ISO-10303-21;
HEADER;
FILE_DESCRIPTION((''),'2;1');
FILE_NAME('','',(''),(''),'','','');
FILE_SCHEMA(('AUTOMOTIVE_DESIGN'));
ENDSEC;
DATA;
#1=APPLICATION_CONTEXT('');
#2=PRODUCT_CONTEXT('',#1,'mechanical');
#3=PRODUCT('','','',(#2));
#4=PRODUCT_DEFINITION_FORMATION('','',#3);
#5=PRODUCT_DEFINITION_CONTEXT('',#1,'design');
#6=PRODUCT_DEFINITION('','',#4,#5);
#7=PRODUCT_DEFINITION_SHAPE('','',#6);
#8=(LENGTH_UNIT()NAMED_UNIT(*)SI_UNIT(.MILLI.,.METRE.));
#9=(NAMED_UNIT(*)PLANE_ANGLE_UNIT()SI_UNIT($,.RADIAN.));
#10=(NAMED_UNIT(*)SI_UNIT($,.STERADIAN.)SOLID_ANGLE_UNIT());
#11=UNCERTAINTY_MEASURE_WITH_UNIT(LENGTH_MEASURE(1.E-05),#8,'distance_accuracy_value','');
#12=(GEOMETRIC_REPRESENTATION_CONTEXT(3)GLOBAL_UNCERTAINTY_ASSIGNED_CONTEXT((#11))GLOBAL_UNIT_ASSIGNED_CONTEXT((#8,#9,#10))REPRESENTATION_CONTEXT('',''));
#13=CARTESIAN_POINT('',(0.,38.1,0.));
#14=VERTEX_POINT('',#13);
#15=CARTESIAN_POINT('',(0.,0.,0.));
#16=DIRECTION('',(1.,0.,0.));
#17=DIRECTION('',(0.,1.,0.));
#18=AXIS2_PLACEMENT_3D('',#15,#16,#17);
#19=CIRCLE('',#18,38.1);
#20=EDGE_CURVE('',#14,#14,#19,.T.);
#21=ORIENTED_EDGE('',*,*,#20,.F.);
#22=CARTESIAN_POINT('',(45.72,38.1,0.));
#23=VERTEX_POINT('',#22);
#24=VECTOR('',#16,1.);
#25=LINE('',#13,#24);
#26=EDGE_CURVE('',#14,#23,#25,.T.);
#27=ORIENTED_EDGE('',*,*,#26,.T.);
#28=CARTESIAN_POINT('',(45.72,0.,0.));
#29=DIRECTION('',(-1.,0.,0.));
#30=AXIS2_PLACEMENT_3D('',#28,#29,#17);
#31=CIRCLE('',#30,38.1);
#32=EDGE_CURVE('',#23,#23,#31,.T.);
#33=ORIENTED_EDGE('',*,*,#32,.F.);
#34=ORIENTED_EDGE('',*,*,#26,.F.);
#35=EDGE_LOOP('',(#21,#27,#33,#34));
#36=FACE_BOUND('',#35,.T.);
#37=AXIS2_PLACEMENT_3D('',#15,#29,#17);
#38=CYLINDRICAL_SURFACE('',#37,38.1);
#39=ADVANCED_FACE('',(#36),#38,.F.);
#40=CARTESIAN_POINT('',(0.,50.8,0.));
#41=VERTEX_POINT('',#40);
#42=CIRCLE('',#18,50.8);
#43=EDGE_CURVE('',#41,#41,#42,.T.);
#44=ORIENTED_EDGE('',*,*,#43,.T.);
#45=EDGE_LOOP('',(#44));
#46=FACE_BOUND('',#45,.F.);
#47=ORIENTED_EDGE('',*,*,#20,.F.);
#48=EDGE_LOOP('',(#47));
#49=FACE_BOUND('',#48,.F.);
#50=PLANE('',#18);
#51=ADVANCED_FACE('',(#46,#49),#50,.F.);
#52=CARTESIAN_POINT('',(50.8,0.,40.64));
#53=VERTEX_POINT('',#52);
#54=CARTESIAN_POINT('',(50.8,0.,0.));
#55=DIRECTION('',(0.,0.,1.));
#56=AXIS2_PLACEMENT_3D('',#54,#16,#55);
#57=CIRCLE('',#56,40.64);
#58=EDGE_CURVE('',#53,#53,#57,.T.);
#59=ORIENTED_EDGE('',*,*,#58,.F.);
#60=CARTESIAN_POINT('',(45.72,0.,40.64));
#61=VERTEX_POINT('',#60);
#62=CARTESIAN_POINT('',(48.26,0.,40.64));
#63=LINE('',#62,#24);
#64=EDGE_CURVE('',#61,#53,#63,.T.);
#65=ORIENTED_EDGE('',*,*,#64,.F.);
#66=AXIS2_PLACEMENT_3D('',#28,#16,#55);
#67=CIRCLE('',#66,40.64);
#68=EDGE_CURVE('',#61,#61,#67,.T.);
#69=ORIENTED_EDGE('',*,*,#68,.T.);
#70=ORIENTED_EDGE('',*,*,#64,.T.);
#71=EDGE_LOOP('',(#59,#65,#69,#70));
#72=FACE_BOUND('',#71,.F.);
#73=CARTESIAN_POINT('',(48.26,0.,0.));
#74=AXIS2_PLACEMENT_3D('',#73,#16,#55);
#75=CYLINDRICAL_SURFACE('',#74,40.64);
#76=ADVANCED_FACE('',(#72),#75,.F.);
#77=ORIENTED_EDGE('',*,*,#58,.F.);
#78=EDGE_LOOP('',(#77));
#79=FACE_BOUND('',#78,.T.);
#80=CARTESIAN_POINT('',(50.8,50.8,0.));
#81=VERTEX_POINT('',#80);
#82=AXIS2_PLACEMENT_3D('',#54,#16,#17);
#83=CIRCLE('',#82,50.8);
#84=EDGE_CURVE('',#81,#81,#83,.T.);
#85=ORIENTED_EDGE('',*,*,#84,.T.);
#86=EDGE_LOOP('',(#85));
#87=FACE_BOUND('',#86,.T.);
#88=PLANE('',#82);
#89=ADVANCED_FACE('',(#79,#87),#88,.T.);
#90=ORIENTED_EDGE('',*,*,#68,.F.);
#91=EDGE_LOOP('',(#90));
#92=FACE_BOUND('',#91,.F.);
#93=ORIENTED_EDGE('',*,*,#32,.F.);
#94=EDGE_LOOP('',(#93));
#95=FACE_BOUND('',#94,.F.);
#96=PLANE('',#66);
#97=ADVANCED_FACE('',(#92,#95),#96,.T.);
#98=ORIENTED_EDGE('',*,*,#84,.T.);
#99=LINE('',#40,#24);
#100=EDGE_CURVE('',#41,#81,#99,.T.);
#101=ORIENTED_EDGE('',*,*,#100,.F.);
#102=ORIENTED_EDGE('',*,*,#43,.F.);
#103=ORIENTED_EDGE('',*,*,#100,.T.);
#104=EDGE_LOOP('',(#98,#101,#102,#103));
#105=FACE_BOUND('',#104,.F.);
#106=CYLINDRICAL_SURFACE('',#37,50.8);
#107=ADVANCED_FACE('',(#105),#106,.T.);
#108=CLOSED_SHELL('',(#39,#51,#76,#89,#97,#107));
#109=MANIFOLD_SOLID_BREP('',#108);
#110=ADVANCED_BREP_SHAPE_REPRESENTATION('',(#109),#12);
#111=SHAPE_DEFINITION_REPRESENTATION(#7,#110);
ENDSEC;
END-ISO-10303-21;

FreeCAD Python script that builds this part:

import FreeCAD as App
import Part
import Sketcher
from FreeCAD import Vector
Q = App.Units.Quantity

doc = App.newDocument("Part")
body = doc.addObject("PartDesign::Body", "Body")

# Sketch on YZ plane
sketch1 = doc.addObject("Sketcher::SketchObject", "Sketch")
body.addObject(sketch1)
sketch1.AttachmentSupport = (doc.YZ_Plane, [""])
sketch1.MapMode = "FlatFace"
sketch1.addGeometry([
    Part.Circle(Vector(0, 0, 0), Vector(0, 0, 1), 50.8),
    Part.Circle(Vector(0, 0, 0), Vector(0, 0, 1), 38.1),
], False)
sketch1.addConstraint([
    Sketcher.Constraint("Coincident", 0, 3, -1, 1),
    Sketcher.Constraint("Coincident", 1, 3, -1, 1),
    Sketcher.Constraint("Diameter", 0, Q("4 in")),
    Sketcher.Constraint("Diameter", 1, Q("3 in")),
])
pad1 = doc.addObject("PartDesign::Pad", "Pad")
body.addObject(pad1)
pad1.Profile = sketch1
pad1.Length = Q("2 in")

# Sketch on XZ plane
sketch2 = doc.addObject("Sketcher::SketchObject", "Sketch001")
body.addObject(sketch2)
sketch2.AttachmentSupport = (doc.XZ_Plane, [""])
sketch2.MapMode = "FlatFace"
sketch2.addGeometry([
    Part.LineSegment(Vector(45.72, 40.64, 0), Vector(45.72, 35.56, 0)),
    Part.LineSegment(Vector(45.72, 35.56, 0), Vector(50.8, 35.56, 0)),
    Part.LineSegment(Vector(50.8, 35.56, 0), Vector(50.8, 40.64, 0)),
    Part.LineSegment(Vector(50.8, 40.64, 0), Vector(45.72, 40.64, 0)),
], False)
sketch2.addConstraint([
    Sketcher.Constraint("Coincident", 0, 2, 1, 1),
    Sketcher.Constraint("Coincident", 1, 2, 2, 1),
    Sketcher.Constraint("Coincident", 2, 2, 3, 1),
    Sketcher.Constraint("Coincident", 3, 2, 0, 1),
    Sketcher.Constraint("Vertical", 0),
    Sketcher.Constraint("Horizontal", 1),
    Sketcher.Constraint("Vertical", 2),
    Sketcher.Constraint("Horizontal", 3),
    Sketcher.Constraint("Equal", 3, 0),
    Sketcher.Constraint("DistanceX", 1, 1, 1, 2, Q("0.2 in")),
    Sketcher.Constraint("DistanceX", -1, 1, 1, 2, Q("2 in")),
    Sketcher.Constraint("DistanceY", -1, 1, 0, 2, Q("1.4 in")),
])
groove = doc.addObject("PartDesign::Groove", "Groove")
body.addObject(groove)
groove.Profile = sketch2
groove.ReferenceAxis = (sketch2, ["H_Axis"])
groove.Angle = 360

doc.recompute()
